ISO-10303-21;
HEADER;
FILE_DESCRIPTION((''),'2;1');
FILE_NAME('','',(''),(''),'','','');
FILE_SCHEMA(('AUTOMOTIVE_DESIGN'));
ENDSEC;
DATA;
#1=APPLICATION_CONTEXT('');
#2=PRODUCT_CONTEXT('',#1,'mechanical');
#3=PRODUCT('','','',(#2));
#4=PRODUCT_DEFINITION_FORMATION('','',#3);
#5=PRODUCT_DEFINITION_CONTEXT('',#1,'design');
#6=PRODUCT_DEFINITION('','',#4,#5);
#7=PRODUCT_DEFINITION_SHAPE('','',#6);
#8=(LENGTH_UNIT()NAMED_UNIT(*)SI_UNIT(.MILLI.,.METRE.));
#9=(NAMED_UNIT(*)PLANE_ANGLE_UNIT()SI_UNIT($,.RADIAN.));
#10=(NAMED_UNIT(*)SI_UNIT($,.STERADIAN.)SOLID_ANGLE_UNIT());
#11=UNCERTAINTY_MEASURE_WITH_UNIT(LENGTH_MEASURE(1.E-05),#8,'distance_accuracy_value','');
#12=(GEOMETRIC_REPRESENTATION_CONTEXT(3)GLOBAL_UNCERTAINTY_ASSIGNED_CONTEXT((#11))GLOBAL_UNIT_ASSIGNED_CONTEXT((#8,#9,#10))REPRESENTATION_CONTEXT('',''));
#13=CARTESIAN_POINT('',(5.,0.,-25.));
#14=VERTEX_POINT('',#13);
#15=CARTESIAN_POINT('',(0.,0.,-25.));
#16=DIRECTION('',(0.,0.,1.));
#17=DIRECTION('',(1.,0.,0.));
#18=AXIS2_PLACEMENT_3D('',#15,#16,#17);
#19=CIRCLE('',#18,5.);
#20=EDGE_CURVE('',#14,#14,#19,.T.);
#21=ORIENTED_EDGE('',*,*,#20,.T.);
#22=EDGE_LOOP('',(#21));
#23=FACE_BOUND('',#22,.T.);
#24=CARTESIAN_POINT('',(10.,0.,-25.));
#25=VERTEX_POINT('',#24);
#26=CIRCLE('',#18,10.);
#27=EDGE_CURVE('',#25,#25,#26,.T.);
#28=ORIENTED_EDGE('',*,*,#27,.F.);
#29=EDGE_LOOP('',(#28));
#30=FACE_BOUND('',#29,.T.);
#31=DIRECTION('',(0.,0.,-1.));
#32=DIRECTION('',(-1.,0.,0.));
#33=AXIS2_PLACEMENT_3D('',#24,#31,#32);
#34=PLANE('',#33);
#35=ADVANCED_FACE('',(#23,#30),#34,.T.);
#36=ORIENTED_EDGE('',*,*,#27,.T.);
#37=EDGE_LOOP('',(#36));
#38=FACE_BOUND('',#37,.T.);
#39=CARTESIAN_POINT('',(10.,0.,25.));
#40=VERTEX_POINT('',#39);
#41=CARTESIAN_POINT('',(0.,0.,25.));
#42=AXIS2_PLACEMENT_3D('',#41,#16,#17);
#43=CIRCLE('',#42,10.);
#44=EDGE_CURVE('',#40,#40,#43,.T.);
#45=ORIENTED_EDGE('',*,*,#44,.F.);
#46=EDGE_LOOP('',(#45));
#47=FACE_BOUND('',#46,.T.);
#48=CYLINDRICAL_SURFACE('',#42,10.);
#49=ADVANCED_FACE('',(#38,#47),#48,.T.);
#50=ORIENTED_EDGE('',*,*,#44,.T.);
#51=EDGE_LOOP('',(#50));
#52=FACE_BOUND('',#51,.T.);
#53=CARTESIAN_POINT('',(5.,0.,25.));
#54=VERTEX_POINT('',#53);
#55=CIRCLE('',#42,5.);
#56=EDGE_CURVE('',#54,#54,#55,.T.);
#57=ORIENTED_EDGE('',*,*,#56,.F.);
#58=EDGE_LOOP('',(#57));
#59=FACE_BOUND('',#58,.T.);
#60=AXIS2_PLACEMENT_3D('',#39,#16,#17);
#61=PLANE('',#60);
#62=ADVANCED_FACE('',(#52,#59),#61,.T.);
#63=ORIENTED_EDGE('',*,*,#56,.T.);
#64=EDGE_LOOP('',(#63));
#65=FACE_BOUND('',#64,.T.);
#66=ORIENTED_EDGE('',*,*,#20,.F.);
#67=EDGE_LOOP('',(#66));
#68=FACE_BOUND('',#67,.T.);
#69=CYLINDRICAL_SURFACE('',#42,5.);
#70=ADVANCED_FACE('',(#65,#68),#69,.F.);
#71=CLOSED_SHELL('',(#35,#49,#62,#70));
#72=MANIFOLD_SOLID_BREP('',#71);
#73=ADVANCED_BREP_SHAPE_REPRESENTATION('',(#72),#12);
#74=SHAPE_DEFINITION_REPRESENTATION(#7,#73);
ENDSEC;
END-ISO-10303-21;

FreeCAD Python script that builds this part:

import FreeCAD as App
import Part
import Sketcher
Q = App.Units.Quantity


def add_polygon(sketch, points):
    """Adds a closed chain of lines whose ends are joined by coincident constraints."""
    first, n = sketch.GeometryCount, len(points)
    for a, b in zip(points, points[1:] + points[:1]):
        sketch.addGeometry(Part.LineSegment(App.Vector(*a, 0), App.Vector(*b, 0)), False)
    for i in range(n):
        sketch.addConstraint(Sketcher.Constraint("Coincident", first + i, 2, first + (i + 1) % n, 1))

doc = App.newDocument("Part")
params = doc.addObject("Spreadsheet::Sheet", "Params")
for row, (alias, value) in enumerate([
    ("sketch1_width", "5 mm"),
    ("sketch1_height", "50 mm"),
    ("revolution_angle", "360 deg"),
], start=1):
    params.set(f"A{row}", alias)
    params.set(f"B{row}", "=" + value)
    params.setAlias(f"B{row}", alias)

body = doc.addObject("PartDesign::Body", "Body")

# Sketch on XZ plane
sketch1 = body.newObject("Sketcher::SketchObject", "Sketch")
sketch1.AttachmentSupport = (doc.getObject("XZ_Plane"), [""])
sketch1.MapMode = "FlatFace"
add_polygon(sketch1, [(5, -25), (5, 25), (10, 25), (10, -25)])  # lines 0-3
sketch1.addConstraint(Sketcher.Constraint("Vertical", 0))
sketch1.addConstraint(Sketcher.Constraint("Horizontal", 1))
sketch1.addConstraint(Sketcher.Constraint("Vertical", 2))
sketch1.addConstraint(Sketcher.Constraint("Horizontal", 3))
sketch1.addConstraint(Sketcher.Constraint("DistanceX", 1, 1, 1, 2, Q("5 mm")))
sketch1.addConstraint(Sketcher.Constraint("DistanceY", 0, 1, 0, 2, Q("50 mm")))
sketch1.addConstraint(Sketcher.Constraint("DistanceX", -1, 1, 0, 2, Q("5 mm")))
sketch1.addConstraint(Sketcher.Constraint("DistanceY", -1, 1, 0, 2, Q("25 mm")))
sketch1.setExpression("Constraints[8]", "Params.sketch1_width")
sketch1.setExpression("Constraints[9]", "Params.sketch1_height")
revolution = body.newObject("PartDesign::Revolution", "Revolution")
revolution.Profile = sketch1
revolution.ReferenceAxis = (sketch1, ["V_Axis"])
revolution.setExpression("Angle", "Params.revolution_angle")

doc.recompute()
